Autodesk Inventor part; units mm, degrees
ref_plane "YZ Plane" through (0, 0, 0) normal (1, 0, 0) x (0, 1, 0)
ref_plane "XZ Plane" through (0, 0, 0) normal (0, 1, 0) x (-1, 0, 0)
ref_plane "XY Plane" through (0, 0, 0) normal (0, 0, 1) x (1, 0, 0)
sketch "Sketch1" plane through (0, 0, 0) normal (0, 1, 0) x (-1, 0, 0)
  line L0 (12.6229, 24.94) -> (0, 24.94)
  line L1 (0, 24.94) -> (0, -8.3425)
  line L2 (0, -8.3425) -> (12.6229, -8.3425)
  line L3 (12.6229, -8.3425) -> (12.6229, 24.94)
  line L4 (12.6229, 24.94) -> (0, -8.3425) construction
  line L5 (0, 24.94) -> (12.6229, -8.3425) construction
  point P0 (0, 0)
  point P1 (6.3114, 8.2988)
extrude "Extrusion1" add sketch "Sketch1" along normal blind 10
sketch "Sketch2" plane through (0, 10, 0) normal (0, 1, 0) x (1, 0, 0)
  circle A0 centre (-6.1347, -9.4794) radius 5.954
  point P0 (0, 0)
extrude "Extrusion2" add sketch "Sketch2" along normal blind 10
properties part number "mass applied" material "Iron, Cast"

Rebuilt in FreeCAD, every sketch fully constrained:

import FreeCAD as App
import Part
import Sketcher
from FreeCAD import Vector


def add_polygon(sketch, points):
    """Adds a closed chain of lines whose ends are joined by coincident constraints."""
    first, n = sketch.GeometryCount, len(points)
    for a, b in zip(points, points[1:] + points[:1]):
        sketch.addGeometry(Part.LineSegment(App.Vector(*a, 0), App.Vector(*b, 0)), False)
    for i in range(n):
        sketch.addConstraint(Sketcher.Constraint("Coincident", first + i, 2, first + (i + 1) % n, 1))

doc = App.newDocument("Part")
body = doc.addObject("PartDesign::Body", "Body")

# Sketch on XZ plane
sketch1 = body.newObject("Sketcher::SketchObject", "Sketch")
sketch1.AttachmentSupport = (doc.getObject("XZ_Plane"), [""])
sketch1.MapMode = "FlatFace"
add_polygon(sketch1, [(-13, -8), (-13, 25), (0, 25), (0, -8)])  # lines 0-3
sketch1.addConstraint(Sketcher.Constraint("Vertical", 0))
sketch1.addConstraint(Sketcher.Constraint("Horizontal", 1))
sketch1.addConstraint(Sketcher.Constraint("Vertical", 2))
sketch1.addConstraint(Sketcher.Constraint("Horizontal", 3))
sketch1.addConstraint(Sketcher.Constraint("PointOnObject", 1, 2, -2))
sketch1.addConstraint(Sketcher.Constraint("DistanceX", 1, 1, 1, 2, 12.623))
sketch1.addConstraint(Sketcher.Constraint("DistanceY", -1, 1, 0, 2, 24.94))
sketch1.addConstraint(Sketcher.Constraint("DistanceY", 0, 1, 0, 2, 33.2825))
pad1 = body.newObject("PartDesign::Pad", "Pad")
pad1.Profile = sketch1
pad1.Length = 10
pad1.Reversed = True

# Sketch on XZ plane
sketch2 = body.newObject("Sketcher::SketchObject", "Sketch001")
sketch2.AttachmentSupport = (doc.getObject("XZ_Plane"), [""])
sketch2.MapMode = "FlatFace"
sketch2.AttachmentOffset = App.Placement(Vector(0, 0, -10), App.Rotation())
sketch2.addGeometry(Part.Circle(Vector(-6, 9, 0), Vector(0, 0, 1), 6), False)
sketch2.addConstraint(Sketcher.Constraint("Diameter", 0, 11.908))
sketch2.addConstraint(Sketcher.Constraint("DistanceX", 0, 3, -1, 1, 6.1347))
sketch2.addConstraint(Sketcher.Constraint("DistanceY", -1, 1, 0, 3, 9.4794))
pad2 = body.newObject("PartDesign::Pad", "Pad001")
pad2.Profile = sketch2
pad2.Length = 10
pad2.Reversed = True

doc.recompute()
